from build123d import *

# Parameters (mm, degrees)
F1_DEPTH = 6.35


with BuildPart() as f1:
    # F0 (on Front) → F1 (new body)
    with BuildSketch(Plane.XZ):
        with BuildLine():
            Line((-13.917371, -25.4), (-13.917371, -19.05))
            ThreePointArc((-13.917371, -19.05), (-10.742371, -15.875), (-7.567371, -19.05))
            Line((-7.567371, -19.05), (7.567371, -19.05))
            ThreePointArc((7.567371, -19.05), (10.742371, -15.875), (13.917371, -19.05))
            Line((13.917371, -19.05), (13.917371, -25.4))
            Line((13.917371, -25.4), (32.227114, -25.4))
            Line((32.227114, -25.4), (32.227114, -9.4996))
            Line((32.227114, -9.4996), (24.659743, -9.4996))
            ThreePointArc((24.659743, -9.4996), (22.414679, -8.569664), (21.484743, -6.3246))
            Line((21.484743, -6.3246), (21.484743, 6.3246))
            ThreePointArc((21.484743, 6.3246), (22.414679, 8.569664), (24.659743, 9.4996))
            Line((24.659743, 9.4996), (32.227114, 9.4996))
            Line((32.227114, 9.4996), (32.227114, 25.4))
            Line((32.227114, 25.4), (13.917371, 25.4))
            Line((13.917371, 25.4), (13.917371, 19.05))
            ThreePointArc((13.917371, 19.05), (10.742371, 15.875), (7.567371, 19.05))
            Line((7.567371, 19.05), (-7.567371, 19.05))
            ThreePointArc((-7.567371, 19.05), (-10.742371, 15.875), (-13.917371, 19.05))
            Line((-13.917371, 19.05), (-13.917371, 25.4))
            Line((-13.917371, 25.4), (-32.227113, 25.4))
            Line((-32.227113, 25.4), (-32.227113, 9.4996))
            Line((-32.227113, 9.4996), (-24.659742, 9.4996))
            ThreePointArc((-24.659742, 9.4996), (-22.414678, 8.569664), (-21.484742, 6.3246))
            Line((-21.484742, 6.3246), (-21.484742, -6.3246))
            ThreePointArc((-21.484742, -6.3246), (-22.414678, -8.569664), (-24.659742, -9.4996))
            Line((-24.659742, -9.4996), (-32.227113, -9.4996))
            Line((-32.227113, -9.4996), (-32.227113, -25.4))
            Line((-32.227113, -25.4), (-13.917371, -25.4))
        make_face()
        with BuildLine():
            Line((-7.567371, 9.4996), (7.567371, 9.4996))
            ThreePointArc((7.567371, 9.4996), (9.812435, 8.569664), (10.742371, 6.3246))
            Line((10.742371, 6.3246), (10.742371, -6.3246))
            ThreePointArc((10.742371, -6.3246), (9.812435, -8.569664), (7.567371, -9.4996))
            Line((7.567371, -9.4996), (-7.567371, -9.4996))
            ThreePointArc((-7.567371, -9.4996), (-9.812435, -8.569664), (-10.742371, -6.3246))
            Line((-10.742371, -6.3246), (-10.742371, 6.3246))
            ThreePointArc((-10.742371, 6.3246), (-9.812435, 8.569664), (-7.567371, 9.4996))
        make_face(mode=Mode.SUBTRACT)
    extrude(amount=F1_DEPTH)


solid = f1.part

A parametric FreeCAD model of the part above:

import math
import FreeCAD as App
import Part
import Sketcher
from FreeCAD import Vector
Q = App.Units.Quantity

doc = App.newDocument("Part")
body = doc.addObject("PartDesign::Body", "Body")

# Sketch on XZ plane
sketch1 = body.newObject("Sketcher::SketchObject", "Sketch")
sketch1.AttachmentSupport = (doc.getObject("XZ_Plane"), [""])
sketch1.MapMode = "FlatFace"
sketch1.addGeometry(Part.LineSegment(Vector(-13.9, -25.4, 0), Vector(-13.9, -19.1, 0)), False)
sketch1.addGeometry(Part.ArcOfCircle(Part.Circle(Vector(-10.7, -19.1, 0), Vector(0, 0, 1), 3.2), math.radians(0), math.radians(180)), False)
sketch1.addGeometry(Part.LineSegment(Vector(-7.6, -19.1, 0), Vector(7.6, -19.1, 0)), False)
sketch1.addGeometry(Part.ArcOfCircle(Part.Circle(Vector(10.7, -19.1, 0), Vector(0, 0, 1), 3.2), math.radians(0), math.radians(180)), False)
sketch1.addGeometry(Part.LineSegment(Vector(13.9, -19.1, 0), Vector(13.9, -25.4, 0)), False)
sketch1.addGeometry(Part.LineSegment(Vector(13.9, -25.4, 0), Vector(32.2, -25.4, 0)), False)
sketch1.addGeometry(Part.LineSegment(Vector(32.2, -25.4, 0), Vector(32.2, -9.5, 0)), False)
sketch1.addGeometry(Part.LineSegment(Vector(32.2, -9.5, 0), Vector(24.7, -9.5, 0)), False)
sketch1.addGeometry(Part.ArcOfCircle(Part.Circle(Vector(24.7, -6.3, 0), Vector(0, 0, 1), 3.2), math.radians(-180), math.radians(-90)), False)
sketch1.addGeometry(Part.LineSegment(Vector(21.5, -6.3, 0), Vector(21.5, 6.3, 0)), False)
sketch1.addGeometry(Part.ArcOfCircle(Part.Circle(Vector(24.7, 6.3, 0), Vector(0, 0, 1), 3.2), math.radians(90), math.radians(180)), False)
sketch1.addGeometry(Part.LineSegment(Vector(24.7, 9.5, 0), Vector(32.2, 9.5, 0)), False)
sketch1.addGeometry(Part.LineSegment(Vector(32.2, 9.5, 0), Vector(32.2, 25.4, 0)), False)
sketch1.addGeometry(Part.LineSegment(Vector(32.2, 25.4, 0), Vector(13.9, 25.4, 0)), False)
sketch1.addGeometry(Part.LineSegment(Vector(13.9, 25.4, 0), Vector(13.9, 19.1, 0)), False)
sketch1.addGeometry(Part.ArcOfCircle(Part.Circle(Vector(10.7, 19.1, 0), Vector(0, 0, 1), 3.2), math.radians(180), math.radians(360)), False)
sketch1.addGeometry(Part.LineSegment(Vector(7.6, 19.1, 0), Vector(-7.6, 19.1, 0)), False)
sketch1.addGeometry(Part.ArcOfCircle(Part.Circle(Vector(-10.7, 19.1, 0), Vector(0, 0, 1), 3.2), math.radians(180), math.radians(360)), False)
sketch1.addGeometry(Part.LineSegment(Vector(-13.9, 19.1, 0), Vector(-13.9, 25.4, 0)), False)
sketch1.addGeometry(Part.LineSegment(Vector(-13.9, 25.4, 0), Vector(-32.2, 25.4, 0)), False)
sketch1.addGeometry(Part.LineSegment(Vector(-32.2, 25.4, 0), Vector(-32.2, 9.5, 0)), False)
sketch1.addGeometry(Part.LineSegment(Vector(-32.2, 9.5, 0), Vector(-24.7, 9.5, 0)), False)
sketch1.addGeometry(Part.ArcOfCircle(Part.Circle(Vector(-24.7, 6.3, 0), Vector(0, 0, 1), 3.2), math.radians(0), math.radians(90)), False)
sketch1.addGeometry(Part.LineSegment(Vector(-21.5, 6.3, 0), Vector(-21.5, -6.3, 0)), False)
sketch1.addGeometry(Part.ArcOfCircle(Part.Circle(Vector(-24.7, -6.3, 0), Vector(0, 0, 1), 3.2), math.radians(-90), math.radians(0)), False)
sketch1.addGeometry(Part.LineSegment(Vector(-24.7, -9.5, 0), Vector(-32.2, -9.5, 0)), False)
sketch1.addGeometry(Part.LineSegment(Vector(-32.2, -9.5, 0), Vector(-32.2, -25.4, 0)), False)
sketch1.addGeometry(Part.LineSegment(Vector(-32.2, -25.4, 0), Vector(-13.9, -25.4, 0)), False)
sketch1.addGeometry(Part.ArcOfCircle(Part.Circle(Vector(-7.6, 6.3, 0), Vector(0, 0, 1), 3.2), math.radians(90), math.radians(180)), False)
sketch1.addGeometry(Part.LineSegment(Vector(-7.6, 9.5, 0), Vector(7.6, 9.5, 0)), False)
sketch1.addGeometry(Part.ArcOfCircle(Part.Circle(Vector(7.6, 6.3, 0), Vector(0, 0, 1), 3.2), math.radians(0), math.radians(90)), False)
sketch1.addGeometry(Part.LineSegment(Vector(10.7, 6.3, 0), Vector(10.7, -6.3, 0)), False)
sketch1.addGeometry(Part.ArcOfCircle(Part.Circle(Vector(7.6, -6.3, 0), Vector(0, 0, 1), 3.2), math.radians(-90), math.radians(0)), False)
sketch1.addGeometry(Part.LineSegment(Vector(7.6, -9.5, 0), Vector(-7.6, -9.5, 0)), False)
sketch1.addGeometry(Part.ArcOfCircle(Part.Circle(Vector(-7.6, -6.3, 0), Vector(0, 0, 1), 3.2), math.radians(-180), math.radians(-90)), False)
sketch1.addGeometry(Part.LineSegment(Vector(-10.7, -6.3, 0), Vector(-10.7, 6.3, 0)), False)
sketch1.addConstraint(Sketcher.Constraint("Tangent", 0, 2, 1, 2))
sketch1.addConstraint(Sketcher.Constraint("Coincident", 1, 1, 2, 1))
sketch1.addConstraint(Sketcher.Constraint("Coincident", 2, 2, 3, 2))
sketch1.addConstraint(Sketcher.Constraint("Tangent", 3, 1, 4, 1))
sketch1.addConstraint(Sketcher.Constraint("Coincident", 4, 2, 5, 1))
sketch1.addConstraint(Sketcher.Constraint("Coincident", 5, 2, 6, 1))
sketch1.addConstraint(Sketcher.Constraint("Coincident", 6, 2, 7, 1))
sketch1.addConstraint(Sketcher.Constraint("Tangent", 7, 2, 8, 2))
sketch1.addConstraint(Sketcher.Constraint("Tangent", 8, 1, 9, 1))
sketch1.addConstraint(Sketcher.Constraint("Tangent", 9, 2, 10, 2))
sketch1.addConstraint(Sketcher.Constraint("Tangent", 10, 1, 11, 1))
sketch1.addConstraint(Sketcher.Constraint("Coincident", 11, 2, 12, 1))
sketch1.addConstraint(Sketcher.Constraint("Coincident", 12, 2, 13, 1))
sketch1.addConstraint(Sketcher.Constraint("Coincident", 13, 2, 14, 1))
sketch1.addConstraint(Sketcher.Constraint("Tangent", 14, 2, 15, 2))
sketch1.addConstraint(Sketcher.Constraint("Coincident", 15, 1, 16, 1))
sketch1.addConstraint(Sketcher.Constraint("Coincident", 16, 2, 17, 2))
sketch1.addConstraint(Sketcher.Constraint("Tangent", 17, 1, 18, 1))
sketch1.addConstraint(Sketcher.Constraint("Coincident", 18, 2, 19, 1))
sketch1.addConstraint(Sketcher.Constraint("Coincident", 19, 2, 20, 1))
sketch1.addConstraint(Sketcher.Constraint("Coincident", 20, 2, 21, 1))
sketch1.addConstraint(Sketcher.Constraint("Tangent", 21, 2, 22, 2))
sketch1.addConstraint(Sketcher.Constraint("Tangent", 22, 1, 23, 1))
sketch1.addConstraint(Sketcher.Constraint("Tangent", 23, 2, 24, 2))
sketch1.addConstraint(Sketcher.Constraint("Tangent", 24, 1, 25, 1))
sketch1.addConstraint(Sketcher.Constraint("Coincident", 25, 2, 26, 1))
sketch1.addConstraint(Sketcher.Constraint("Coincident", 26, 2, 27, 1))
sketch1.addConstraint(Sketcher.Constraint("Coincident", 27, 2, 0, 1))
sketch1.addConstraint(Sketcher.Constraint("Tangent", 28, 1, 29, 1))
sketch1.addConstraint(Sketcher.Constraint("Tangent", 29, 2, 30, 2))
sketch1.addConstraint(Sketcher.Constraint("Tangent", 30, 1, 31, 1))
sketch1.addConstraint(Sketcher.Constraint("Tangent", 31, 2, 32, 2))
sketch1.addConstraint(Sketcher.Constraint("Tangent", 32, 1, 33, 1))
sketch1.addConstraint(Sketcher.Constraint("Tangent", 33, 2, 34, 2))
sketch1.addConstraint(Sketcher.Constraint("Tangent", 34, 1, 35, 1))
sketch1.addConstraint(Sketcher.Constraint("Tangent", 35, 2, 28, 2))
sketch1.addConstraint(Sketcher.Constraint("Vertical", 0))
sketch1.addConstraint(Sketcher.Constraint("Horizontal", 2))
sketch1.addConstraint(Sketcher.Constraint("Vertical", 4))
sketch1.addConstraint(Sketcher.Constraint("Horizontal", 5))
sketch1.addConstraint(Sketcher.Constraint("Vertical", 6))
sketch1.addConstraint(Sketcher.Constraint("Horizontal", 7))
sketch1.addConstraint(Sketcher.Constraint("Vertical", 9))
sketch1.addConstraint(Sketcher.Constraint("Horizontal", 11))
sketch1.addConstraint(Sketcher.Constraint("Vertical", 12))
sketch1.addConstraint(Sketcher.Constraint("Horizontal", 13))
sketch1.addConstraint(Sketcher.Constraint("Vertical", 14))
sketch1.addConstraint(Sketcher.Constraint("Horizontal", 16))
sketch1.addConstraint(Sketcher.Constraint("Vertical", 18))
sketch1.addConstraint(Sketcher.Constraint("Horizontal", 19))
sketch1.addConstraint(Sketcher.Constraint("Vertical", 20))
sketch1.addConstraint(Sketcher.Constraint("Horizontal", 21))
sketch1.addConstraint(Sketcher.Constraint("Vertical", 23))
sketch1.addConstraint(Sketcher.Constraint("Horizontal", 25))
sketch1.addConstraint(Sketcher.Constraint("Vertical", 26))
sketch1.addConstraint(Sketcher.Constraint("Horizontal", 27))
sketch1.addConstraint(Sketcher.Constraint("Horizontal", 29))
sketch1.addConstraint(Sketcher.Constraint("Vertical", 31))
sketch1.addConstraint(Sketcher.Constraint("Horizontal", 33))
sketch1.addConstraint(Sketcher.Constraint("Vertical", 35))
sketch1.addConstraint(Sketcher.Constraint("Equal", 1, 3))
sketch1.addConstraint(Sketcher.Constraint("Equal", 3, 8))
sketch1.addConstraint(Sketcher.Constraint("Equal", 8, 10))
sketch1.addConstraint(Sketcher.Constraint("Equal", 10, 15))
sketch1.addConstraint(Sketcher.Constraint("Equal", 15, 17))
sketch1.addConstraint(Sketcher.Constraint("Equal", 17, 22))
sketch1.addConstraint(Sketcher.Constraint("Equal", 22, 24))
sketch1.addConstraint(Sketcher.Constraint("Equal", 24, 28))
sketch1.addConstraint(Sketcher.Constraint("Equal", 28, 30))
sketch1.addConstraint(Sketcher.Constraint("Equal", 30, 32))
sketch1.addConstraint(Sketcher.Constraint("Equal", 32, 34))
sketch1.addConstraint(Sketcher.Constraint("Symmetric", 1, 3, 15, 3, -1, 1))
sketch1.addConstraint(Sketcher.Constraint("Symmetric", 3, 3, 17, 3, -1, 1))
sketch1.addConstraint(Sketcher.Constraint("Symmetric", 8, 3, 22, 3, -1, 1))
sketch1.addConstraint(Sketcher.Constraint("Symmetric", 28, 3, 32, 3, -1, 1))
sketch1.addConstraint(Sketcher.Constraint("Symmetric", 5, 2, 19, 2, -1, 1))
sketch1.addConstraint(Sketcher.Constraint("Symmetric", 11, 2, 25, 2, -1, 1))
sketch1.addConstraint(Sketcher.Constraint("Symmetric", 1, 3, 3, 3, -2))
sketch1.addConstraint(Sketcher.Constraint("Symmetric", 12, 2, 19, 2, -2))
sketch1.addConstraint(Sketcher.Constraint("Horizontal", 10, 3, 22, 3))
sketch1.addConstraint(Sketcher.Constraint("Horizontal", 22, 3, 28, 3))
sketch1.addConstraint(Sketcher.Constraint("Horizontal", 0, 2, 1, 1))
sketch1.addConstraint(Sketcher.Constraint("Horizontal", 14, 2, 15, 1))
sketch1.addConstraint(Sketcher.Constraint("Horizontal", 5, 2, 26, 2))
sketch1.addConstraint(Sketcher.Constraint("Vertical", 34, 3, 1, 1))
sketch1.addConstraint(Sketcher.Constraint("DistanceY", 4, 2, -1, 1, Q("1 in")))
sketch1.addConstraint(Sketcher.Constraint("Radius", 1, Q("0.125 in")))
sketch1.addConstraint(Sketcher.Constraint("DistanceY", 0, 1, 0, 2, Q("0.25 in")))
sketch1.addConstraint(Sketcher.Constraint("DistanceY", 6, 1, 6, 2, Q("0.626 in")))
sketch1.addConstraint(Sketcher.Constraint("DistanceX", 2, 1, 2, 2, 15.134742))
sketch1.addConstraint(Sketcher.Constraint("DistanceX", 7, 2, 7, 1, 7.567371))
sketch1.addConstraint(Sketcher.Constraint("DistanceX", 5, 1, 5, 2, 18.309743))
pad1 = body.newObject("PartDesign::Pad", "Pad")
pad1.Profile = sketch1
pad1.Length = Q("0.25 in")

doc.recompute()
